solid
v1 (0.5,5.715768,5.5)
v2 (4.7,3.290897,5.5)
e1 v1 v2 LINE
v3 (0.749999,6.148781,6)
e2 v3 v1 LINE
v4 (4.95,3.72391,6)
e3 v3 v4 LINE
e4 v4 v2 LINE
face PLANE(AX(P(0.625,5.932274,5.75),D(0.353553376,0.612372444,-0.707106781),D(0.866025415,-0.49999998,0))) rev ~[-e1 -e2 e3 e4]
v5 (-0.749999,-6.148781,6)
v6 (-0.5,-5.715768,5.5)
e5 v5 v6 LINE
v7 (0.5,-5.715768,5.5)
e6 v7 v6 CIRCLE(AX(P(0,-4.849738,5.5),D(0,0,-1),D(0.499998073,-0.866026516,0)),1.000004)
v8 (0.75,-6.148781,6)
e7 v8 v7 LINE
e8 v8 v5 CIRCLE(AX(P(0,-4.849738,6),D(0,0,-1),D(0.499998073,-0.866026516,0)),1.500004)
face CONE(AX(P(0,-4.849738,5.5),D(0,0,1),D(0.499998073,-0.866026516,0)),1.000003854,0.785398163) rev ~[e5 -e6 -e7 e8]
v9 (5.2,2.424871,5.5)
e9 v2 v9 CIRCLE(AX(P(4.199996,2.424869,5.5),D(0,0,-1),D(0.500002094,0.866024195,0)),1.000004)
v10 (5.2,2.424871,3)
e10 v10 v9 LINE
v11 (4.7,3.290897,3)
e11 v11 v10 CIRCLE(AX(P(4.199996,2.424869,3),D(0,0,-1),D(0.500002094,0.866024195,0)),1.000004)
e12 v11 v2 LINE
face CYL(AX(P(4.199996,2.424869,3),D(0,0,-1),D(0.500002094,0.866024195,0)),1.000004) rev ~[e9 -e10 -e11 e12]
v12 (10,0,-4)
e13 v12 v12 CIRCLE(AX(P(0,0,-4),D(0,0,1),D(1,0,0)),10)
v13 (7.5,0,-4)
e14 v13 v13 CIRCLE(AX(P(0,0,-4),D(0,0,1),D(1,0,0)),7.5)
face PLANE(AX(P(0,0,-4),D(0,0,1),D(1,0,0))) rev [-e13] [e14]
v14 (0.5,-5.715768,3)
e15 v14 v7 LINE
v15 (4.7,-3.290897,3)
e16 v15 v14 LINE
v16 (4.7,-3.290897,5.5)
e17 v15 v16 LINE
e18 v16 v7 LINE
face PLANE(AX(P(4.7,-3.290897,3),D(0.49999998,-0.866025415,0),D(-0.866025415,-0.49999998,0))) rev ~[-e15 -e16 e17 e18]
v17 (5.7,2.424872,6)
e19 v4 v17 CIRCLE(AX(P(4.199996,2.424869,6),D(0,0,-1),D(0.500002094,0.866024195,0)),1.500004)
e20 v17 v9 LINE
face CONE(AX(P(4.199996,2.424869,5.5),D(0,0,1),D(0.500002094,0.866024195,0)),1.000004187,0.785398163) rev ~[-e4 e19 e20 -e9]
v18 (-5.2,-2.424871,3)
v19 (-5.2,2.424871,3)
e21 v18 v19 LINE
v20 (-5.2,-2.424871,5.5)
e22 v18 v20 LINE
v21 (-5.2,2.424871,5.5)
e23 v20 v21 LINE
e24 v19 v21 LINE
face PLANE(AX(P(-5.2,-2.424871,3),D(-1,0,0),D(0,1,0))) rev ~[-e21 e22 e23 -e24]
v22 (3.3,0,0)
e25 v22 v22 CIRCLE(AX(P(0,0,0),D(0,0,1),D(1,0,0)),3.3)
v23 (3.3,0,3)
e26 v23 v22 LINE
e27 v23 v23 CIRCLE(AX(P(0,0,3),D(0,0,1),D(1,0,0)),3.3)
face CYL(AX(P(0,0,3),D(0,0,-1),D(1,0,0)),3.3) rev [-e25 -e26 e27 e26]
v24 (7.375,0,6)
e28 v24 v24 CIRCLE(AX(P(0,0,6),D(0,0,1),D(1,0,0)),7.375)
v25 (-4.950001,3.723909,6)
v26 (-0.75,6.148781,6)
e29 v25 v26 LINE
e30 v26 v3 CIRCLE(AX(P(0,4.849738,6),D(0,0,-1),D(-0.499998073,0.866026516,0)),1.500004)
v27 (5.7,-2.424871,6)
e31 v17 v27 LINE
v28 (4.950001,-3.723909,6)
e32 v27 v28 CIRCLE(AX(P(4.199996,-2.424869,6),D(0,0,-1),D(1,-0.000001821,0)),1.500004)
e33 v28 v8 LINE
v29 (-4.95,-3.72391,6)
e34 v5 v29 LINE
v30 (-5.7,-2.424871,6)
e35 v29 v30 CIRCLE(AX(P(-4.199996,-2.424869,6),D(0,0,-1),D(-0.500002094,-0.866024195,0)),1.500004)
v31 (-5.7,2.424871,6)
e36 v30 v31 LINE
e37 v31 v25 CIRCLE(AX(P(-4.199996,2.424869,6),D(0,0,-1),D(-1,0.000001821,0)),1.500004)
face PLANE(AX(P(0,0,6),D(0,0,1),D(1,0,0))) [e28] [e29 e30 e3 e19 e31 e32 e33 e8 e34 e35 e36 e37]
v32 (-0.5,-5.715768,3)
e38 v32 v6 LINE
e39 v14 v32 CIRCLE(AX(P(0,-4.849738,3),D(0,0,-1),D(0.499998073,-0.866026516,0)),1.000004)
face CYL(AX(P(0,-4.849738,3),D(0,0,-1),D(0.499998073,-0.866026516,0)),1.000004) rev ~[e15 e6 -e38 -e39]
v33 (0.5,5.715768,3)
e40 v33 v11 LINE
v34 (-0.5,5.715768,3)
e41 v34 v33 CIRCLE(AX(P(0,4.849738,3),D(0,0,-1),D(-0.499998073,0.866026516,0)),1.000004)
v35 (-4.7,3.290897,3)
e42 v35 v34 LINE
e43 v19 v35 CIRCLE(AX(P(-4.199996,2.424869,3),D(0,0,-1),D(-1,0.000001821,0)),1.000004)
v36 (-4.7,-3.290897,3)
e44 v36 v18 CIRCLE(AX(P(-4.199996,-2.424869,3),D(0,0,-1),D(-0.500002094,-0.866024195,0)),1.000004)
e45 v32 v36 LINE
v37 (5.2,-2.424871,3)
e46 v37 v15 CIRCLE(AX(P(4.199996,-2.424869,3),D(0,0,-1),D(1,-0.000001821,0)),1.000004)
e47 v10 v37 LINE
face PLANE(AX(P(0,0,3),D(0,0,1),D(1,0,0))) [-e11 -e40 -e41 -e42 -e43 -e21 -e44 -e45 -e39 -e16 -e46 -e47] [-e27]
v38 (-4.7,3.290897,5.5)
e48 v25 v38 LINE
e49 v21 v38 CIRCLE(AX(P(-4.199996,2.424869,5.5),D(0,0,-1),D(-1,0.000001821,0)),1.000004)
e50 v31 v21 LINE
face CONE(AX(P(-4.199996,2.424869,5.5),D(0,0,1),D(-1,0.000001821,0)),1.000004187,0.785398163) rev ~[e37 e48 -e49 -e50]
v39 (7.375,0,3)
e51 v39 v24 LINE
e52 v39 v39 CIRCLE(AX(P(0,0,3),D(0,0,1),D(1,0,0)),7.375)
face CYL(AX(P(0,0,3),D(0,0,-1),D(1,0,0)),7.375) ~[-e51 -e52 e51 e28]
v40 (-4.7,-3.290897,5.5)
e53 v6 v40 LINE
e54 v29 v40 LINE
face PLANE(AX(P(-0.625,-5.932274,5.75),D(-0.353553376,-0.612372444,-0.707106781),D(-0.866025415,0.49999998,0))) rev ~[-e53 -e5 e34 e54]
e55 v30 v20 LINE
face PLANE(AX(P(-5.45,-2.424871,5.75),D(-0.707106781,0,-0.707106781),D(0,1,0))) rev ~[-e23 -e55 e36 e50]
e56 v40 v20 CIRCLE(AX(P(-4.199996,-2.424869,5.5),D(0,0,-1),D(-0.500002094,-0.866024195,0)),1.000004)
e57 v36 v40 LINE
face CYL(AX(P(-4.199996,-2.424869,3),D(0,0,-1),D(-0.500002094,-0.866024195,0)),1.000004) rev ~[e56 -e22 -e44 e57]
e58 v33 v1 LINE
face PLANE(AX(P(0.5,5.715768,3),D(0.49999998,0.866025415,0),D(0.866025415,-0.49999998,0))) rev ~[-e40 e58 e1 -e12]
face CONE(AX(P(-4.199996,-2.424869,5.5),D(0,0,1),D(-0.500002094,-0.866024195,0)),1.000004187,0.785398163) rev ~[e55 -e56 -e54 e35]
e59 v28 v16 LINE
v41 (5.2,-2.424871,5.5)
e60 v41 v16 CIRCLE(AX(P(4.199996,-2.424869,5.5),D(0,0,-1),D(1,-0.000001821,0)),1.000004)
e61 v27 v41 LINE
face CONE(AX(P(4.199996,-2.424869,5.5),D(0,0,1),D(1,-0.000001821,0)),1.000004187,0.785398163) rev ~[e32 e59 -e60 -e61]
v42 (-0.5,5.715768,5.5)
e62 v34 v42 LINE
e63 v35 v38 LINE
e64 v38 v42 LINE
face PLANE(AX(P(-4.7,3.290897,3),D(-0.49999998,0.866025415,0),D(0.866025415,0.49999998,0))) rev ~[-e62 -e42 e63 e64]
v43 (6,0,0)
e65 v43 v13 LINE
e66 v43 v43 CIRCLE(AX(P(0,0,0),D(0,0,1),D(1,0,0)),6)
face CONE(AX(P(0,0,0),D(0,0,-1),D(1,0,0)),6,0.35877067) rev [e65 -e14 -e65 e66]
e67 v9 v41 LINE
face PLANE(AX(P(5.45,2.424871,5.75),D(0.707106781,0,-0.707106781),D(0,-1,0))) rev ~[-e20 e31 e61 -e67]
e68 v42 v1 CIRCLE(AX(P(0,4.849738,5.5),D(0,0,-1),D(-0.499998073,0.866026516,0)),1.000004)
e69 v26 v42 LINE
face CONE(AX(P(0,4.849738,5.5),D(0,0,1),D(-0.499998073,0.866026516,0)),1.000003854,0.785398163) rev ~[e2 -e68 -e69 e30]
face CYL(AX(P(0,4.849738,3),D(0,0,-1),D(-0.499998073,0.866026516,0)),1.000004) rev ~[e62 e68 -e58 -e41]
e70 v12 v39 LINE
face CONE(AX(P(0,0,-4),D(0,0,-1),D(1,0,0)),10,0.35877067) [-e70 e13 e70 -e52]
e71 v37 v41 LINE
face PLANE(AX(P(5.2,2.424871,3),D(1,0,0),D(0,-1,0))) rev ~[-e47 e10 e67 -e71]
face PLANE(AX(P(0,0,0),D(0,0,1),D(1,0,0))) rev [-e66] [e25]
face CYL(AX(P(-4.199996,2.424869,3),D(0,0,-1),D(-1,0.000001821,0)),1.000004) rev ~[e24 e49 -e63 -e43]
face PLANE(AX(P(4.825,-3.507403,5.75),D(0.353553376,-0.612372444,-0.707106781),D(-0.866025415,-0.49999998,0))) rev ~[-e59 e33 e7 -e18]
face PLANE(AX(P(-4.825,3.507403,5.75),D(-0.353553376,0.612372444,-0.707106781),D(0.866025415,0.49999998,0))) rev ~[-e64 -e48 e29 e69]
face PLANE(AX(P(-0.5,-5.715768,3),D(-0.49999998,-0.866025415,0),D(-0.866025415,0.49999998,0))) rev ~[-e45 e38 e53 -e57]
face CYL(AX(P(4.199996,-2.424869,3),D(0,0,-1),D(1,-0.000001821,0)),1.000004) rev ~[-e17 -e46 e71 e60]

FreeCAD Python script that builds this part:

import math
import FreeCAD as App
import Part
import Sketcher
from FreeCAD import Vector
Q = App.Units.Quantity


def edges_at(feature, points):
    """Names of the edges that pass closest to the given points."""
    edges = feature.Shape.Edges
    near = lambda p: min(range(len(edges)), key=lambda i: edges[i].distToShape(Part.Vertex(*p))[0])
    return sorted({f"Edge{near(p) + 1}" for p in points})


def add_polygon(sketch, points):
    """Adds a closed chain of lines whose ends are joined by coincident constraints."""
    first, n = sketch.GeometryCount, len(points)
    for a, b in zip(points, points[1:] + points[:1]):
        sketch.addGeometry(Part.LineSegment(App.Vector(*a, 0), App.Vector(*b, 0)), False)
    for i in range(n):
        sketch.addConstraint(Sketcher.Constraint("Coincident", first + i, 2, first + (i + 1) % n, 1))

doc = App.newDocument("Part")
body = doc.addObject("PartDesign::Body", "Body")

sketch1 = body.newObject("Sketcher::SketchObject", "Sketch")
sketch1.AttachmentSupport = (doc.getObject("XZ_Plane"), [""])
sketch1.MapMode = "FlatFace"
add_polygon(sketch1, [(7.4, 3), (3.3, 3), (3.3, 0), (6, 0), (7.5, -4), (10, -4)])
sketch1.addConstraint([
    Sketcher.Constraint("Horizontal", 0),
    Sketcher.Constraint("Vertical", 1),
    Sketcher.Constraint("Horizontal", 2),
    Sketcher.Constraint("Horizontal", 4),
    Sketcher.Constraint("PointOnObject", 1, 2, -1),
    Sketcher.Constraint("Parallel", 3, 5),
    Sketcher.Constraint("DistanceY", 1, 2, 1, 1, Q("3 mm")),
    Sketcher.Constraint("DistanceX", 2, 1, 2, 2, Q("2.7 mm")),
    Sketcher.Constraint("DistanceX", 4, 1, 4, 2, Q("2.5 mm")),
    Sketcher.Constraint("DistanceX", -1, 1, 2, 2, Q("6 mm")),
    Sketcher.Constraint("DistanceY", 3, 2, -1, 1, Q("4 mm")),
    Sketcher.Constraint("DistanceX", -1, 1, 4, 2, Q("10 mm")),
])
revolution = body.newObject("PartDesign::Revolution", "Revolution")
revolution.Profile = sketch1
revolution.ReferenceAxis = (sketch1, ["V_Axis"])
revolution.Angle = 360

sketch2 = body.newObject("Sketcher::SketchObject", "Sketch001")
sketch2.AttachmentSupport = (doc.getObject("XY_Plane"), [""])
sketch2.MapMode = "FlatFace"
sketch2.AttachmentOffset = App.Placement(Vector(0, 0, 3), App.Rotation())
sketch2.addGeometry([
    Part.Circle(Vector(0, 0, 0), Vector(0, 0, 1), 7.4),
    Part.LineSegment(Vector(-4.7, 3.3, 0), Vector(-0.5, 5.7, 0)),
    Part.ArcOfCircle(Part.Circle(Vector(0, 4.8, 0), Vector(0, 0, 1), 1), math.radians(60), math.radians(120)),
    Part.LineSegment(Vector(0.5, 5.7, 0), Vector(4.7, 3.3, 0)),
    Part.ArcOfCircle(Part.Circle(Vector(4.2, 2.4, 0), Vector(0, 0, 1), 1), math.radians(0), math.radians(60)),
    Part.LineSegment(Vector(5.2, 2.4, 0), Vector(5.2, -2.4, 0)),
    Part.ArcOfCircle(Part.Circle(Vector(4.2, -2.4, 0), Vector(0, 0, 1), 1), math.radians(-60), math.radians(0)),
    Part.LineSegment(Vector(4.7, -3.3, 0), Vector(0.5, -5.7, 0)),
    Part.ArcOfCircle(Part.Circle(Vector(0, -4.8, 0), Vector(0, 0, 1), 1), math.radians(-120), math.radians(-60)),
    Part.LineSegment(Vector(-0.5, -5.7, 0), Vector(-4.7, -3.3, 0)),
    Part.ArcOfCircle(Part.Circle(Vector(-4.2, -2.4, 0), Vector(0, 0, 1), 1), math.radians(-180), math.radians(-120)),
    Part.LineSegment(Vector(-5.2, -2.4, 0), Vector(-5.2, 2.4, 0)),
    Part.ArcOfCircle(Part.Circle(Vector(-4.2, 2.4, 0), Vector(0, 0, 1), 1), math.radians(120), math.radians(180)),
], False)
sketch2.addConstraint([
    Sketcher.Constraint("Coincident", 1, 2, 2, 2),
    Sketcher.Constraint("Coincident", 2, 1, 3, 1),
    Sketcher.Constraint("Coincident", 3, 2, 4, 2),
    Sketcher.Constraint("Tangent", 4, 1, 5, 1),
    Sketcher.Constraint("Tangent", 5, 2, 6, 2),
    Sketcher.Constraint("Coincident", 6, 1, 7, 1),
    Sketcher.Constraint("Coincident", 7, 2, 8, 2),
    Sketcher.Constraint("Coincident", 8, 1, 9, 1),
    Sketcher.Constraint("Coincident", 9, 2, 10, 2),
    Sketcher.Constraint("Tangent", 10, 1, 11, 1),
    Sketcher.Constraint("Tangent", 11, 2, 12, 2),
    Sketcher.Constraint("Coincident", 12, 1, 1, 1),
    Sketcher.Constraint("Vertical", 5),
    Sketcher.Constraint("Vertical", 11),
    Sketcher.Constraint("Coincident", 0, 3, -1, 1),
    Sketcher.Constraint("Equal", 2, 4),
    Sketcher.Constraint("Equal", 4, 6),
    Sketcher.Constraint("Equal", 6, 8),
    Sketcher.Constraint("Equal", 8, 10),
    Sketcher.Constraint("Equal", 10, 12),
    Sketcher.Constraint("Symmetric", 2, 3, 8, 3, -1, 1),
    Sketcher.Constraint("Symmetric", 4, 3, 10, 3, -1, 1),
    Sketcher.Constraint("Symmetric", 6, 1, 12, 1, -1, 1),
    Sketcher.Constraint("Symmetric", 1, 2, 2, 1, -2),
    Sketcher.Constraint("Symmetric", 6, 1, 9, 2, -2),
    Sketcher.Constraint("Horizontal", 7, 2, 8, 1),
    Sketcher.Constraint("Horizontal", 3, 2, 12, 1),
    Sketcher.Constraint("Vertical", 2, 1, 7, 2),
    Sketcher.Constraint("Diameter", 0, Q("14.75 mm")),
    Sketcher.Constraint("Angle", 1, Q("29.999999 deg")),
    Sketcher.Constraint("DistanceX", 1, 2, 2, 1, Q("1 mm")),
    Sketcher.Constraint("DistanceX", -1, 1, 3, 2, Q("4.7 mm")),
    Sketcher.Constraint("DistanceX", -1, 1, 4, 1, Q("5.2 mm")),
    Sketcher.Constraint("Radius", 2, Q("1.000004 mm")),
    Sketcher.Constraint("DistanceY", 5, 2, 5, 1, Q("4.849742 mm")),
])
pad1 = body.newObject("PartDesign::Pad", "Pad")
pad1.Profile = sketch2
pad1.Length = 3
doc.recompute()

chamfer = body.newObject("PartDesign::Chamfer", "Chamfer")
chamfer.Base = (pad1, edges_at(pad1, [(-5.2, 0, 6)]))
chamfer.Size = 0.5

doc.recompute()
